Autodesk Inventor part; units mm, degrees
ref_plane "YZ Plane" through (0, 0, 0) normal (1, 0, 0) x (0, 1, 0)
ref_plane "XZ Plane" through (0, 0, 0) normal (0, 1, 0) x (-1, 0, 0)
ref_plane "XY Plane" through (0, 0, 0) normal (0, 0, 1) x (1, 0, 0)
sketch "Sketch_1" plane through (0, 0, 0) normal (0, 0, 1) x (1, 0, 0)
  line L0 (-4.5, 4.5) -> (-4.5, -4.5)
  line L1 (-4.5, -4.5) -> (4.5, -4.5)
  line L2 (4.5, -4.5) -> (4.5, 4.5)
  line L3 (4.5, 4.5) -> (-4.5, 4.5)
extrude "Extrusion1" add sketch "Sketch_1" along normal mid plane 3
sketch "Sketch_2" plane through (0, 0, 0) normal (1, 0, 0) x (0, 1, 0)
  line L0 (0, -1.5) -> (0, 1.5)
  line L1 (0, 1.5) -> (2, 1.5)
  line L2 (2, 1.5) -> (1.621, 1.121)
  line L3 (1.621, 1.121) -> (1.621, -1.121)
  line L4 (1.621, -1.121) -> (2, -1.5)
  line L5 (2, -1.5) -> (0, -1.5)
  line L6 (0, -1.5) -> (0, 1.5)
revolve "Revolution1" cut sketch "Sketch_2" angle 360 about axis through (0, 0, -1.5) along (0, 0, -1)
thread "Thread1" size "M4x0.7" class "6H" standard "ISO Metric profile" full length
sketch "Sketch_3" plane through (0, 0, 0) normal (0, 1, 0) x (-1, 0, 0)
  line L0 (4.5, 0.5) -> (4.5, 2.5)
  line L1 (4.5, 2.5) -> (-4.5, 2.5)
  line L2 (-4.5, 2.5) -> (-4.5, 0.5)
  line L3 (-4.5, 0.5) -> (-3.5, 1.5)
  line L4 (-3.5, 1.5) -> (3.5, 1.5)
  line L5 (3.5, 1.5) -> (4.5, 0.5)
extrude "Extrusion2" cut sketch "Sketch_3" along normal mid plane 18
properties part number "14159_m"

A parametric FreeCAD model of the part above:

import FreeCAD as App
import Part
import Sketcher
from FreeCAD import Vector

doc = App.newDocument("Part")
body = doc.addObject("PartDesign::Body", "Body")

# Sketch on XY plane
sketch1 = body.newObject("Sketcher::SketchObject", "Sketch")
sketch1.AttachmentSupport = (doc.getObject("XY_Plane"), [""])
sketch1.MapMode = "FlatFace"
sketch1.addGeometry(Part.LineSegment(Vector(4, 4, 0), Vector(-4, 4, 0)), False)
sketch1.addGeometry(Part.LineSegment(Vector(-4, 4, 0), Vector(-4, -4, 0)), False)
sketch1.addGeometry(Part.LineSegment(Vector(-4, -4, 0), Vector(4, -4, 0)), False)
sketch1.addGeometry(Part.LineSegment(Vector(4, -4, 0), Vector(4, 4, 0)), False)
sketch1.addConstraint(Sketcher.Constraint("Coincident", 0, 2, 1, 1))
sketch1.addConstraint(Sketcher.Constraint("Coincident", 1, 2, 2, 1))
sketch1.addConstraint(Sketcher.Constraint("Coincident", 2, 2, 3, 1))
sketch1.addConstraint(Sketcher.Constraint("Coincident", 3, 2, 0, 1))
sketch1.addConstraint(Sketcher.Constraint("Horizontal", 0))
sketch1.addConstraint(Sketcher.Constraint("Vertical", 1))
sketch1.addConstraint(Sketcher.Constraint("Horizontal", 2))
sketch1.addConstraint(Sketcher.Constraint("Vertical", 3))
sketch1.addConstraint(Sketcher.Constraint("Symmetric", 0, 2, 2, 2, -1, 1))
sketch1.addConstraint(Sketcher.Constraint("Equal", 2, 1))
sketch1.addConstraint(Sketcher.Constraint("DistanceX", 0, 2, 0, 1, 9.0))
pad1 = body.newObject("PartDesign::Pad", "Pad")
pad1.Profile = sketch1
pad1.Length = 3
pad1.Midplane = True

# Sketch on YZ plane
sketch2 = body.newObject("Sketcher::SketchObject", "Sketch001")
sketch2.AttachmentSupport = (doc.getObject("YZ_Plane"), [""])
sketch2.MapMode = "FlatFace"
sketch2.addGeometry(Part.LineSegment(Vector(0, 1.5, 0), Vector(0, -1.5, 0)), False)
sketch2.addGeometry(Part.LineSegment(Vector(0, -1.5, 0), Vector(2, -1.5, 0)), False)
sketch2.addGeometry(Part.LineSegment(Vector(2, -1.5, 0), Vector(1.6, -1.1, 0)), False)
sketch2.addGeometry(Part.LineSegment(Vector(1.6, -1.1, 0), Vector(1.6, 1.1, 0)), False)
sketch2.addGeometry(Part.LineSegment(Vector(1.6, 1.1, 0), Vector(2, 1.5, 0)), False)
sketch2.addGeometry(Part.LineSegment(Vector(2, 1.5, 0), Vector(0, 1.5, 0)), False)
sketch2.addConstraint(Sketcher.Constraint("Coincident", 0, 2, 1, 1))
sketch2.addConstraint(Sketcher.Constraint("Coincident", 1, 2, 2, 1))
sketch2.addConstraint(Sketcher.Constraint("Coincident", 2, 2, 3, 1))
sketch2.addConstraint(Sketcher.Constraint("Coincident", 3, 2, 4, 1))
sketch2.addConstraint(Sketcher.Constraint("Coincident", 4, 2, 5, 1))
sketch2.addConstraint(Sketcher.Constraint("Coincident", 5, 2, 0, 1))
sketch2.addConstraint(Sketcher.Constraint("Vertical", 0))
sketch2.addConstraint(Sketcher.Constraint("Horizontal", 1))
sketch2.addConstraint(Sketcher.Constraint("Vertical", 3))
sketch2.addConstraint(Sketcher.Constraint("Horizontal", 5))
sketch2.addConstraint(Sketcher.Constraint("Symmetric", 0, 2, 5, 2, -1, 1))
sketch2.addConstraint(Sketcher.Constraint("Perpendicular", 2, 4))
sketch2.addConstraint(Sketcher.Constraint("Vertical", 1, 2, 4, 2))
sketch2.addConstraint(Sketcher.Constraint("Equal", 2, 4))
sketch2.addConstraint(Sketcher.Constraint("DistanceX", 1, 1, 1, 2, 2.0))
sketch2.addConstraint(Sketcher.Constraint("DistanceY", 0, 2, 0, 1, 3.0))
sketch2.addConstraint(Sketcher.Constraint("DistanceY", 3, 1, 3, 2, 2.242))
groove = body.newObject("PartDesign::Groove", "Groove")
groove.Profile = sketch2
groove.ReferenceAxis = (sketch2, ["V_Axis"])
groove.Angle = 360

# Sketch on XZ plane
sketch3 = body.newObject("Sketcher::SketchObject", "Sketch002")
sketch3.AttachmentSupport = (doc.getObject("XZ_Plane"), [""])
sketch3.MapMode = "FlatFace"
sketch3.addGeometry(Part.LineSegment(Vector(-3.5, 1.5, 0), Vector(-4.5, 0.5, 0)), False)
sketch3.addGeometry(Part.LineSegment(Vector(-4.5, 0.5, 0), Vector(-4.5, 2.5, 0)), False)
sketch3.addGeometry(Part.LineSegment(Vector(-4.5, 2.5, 0), Vector(4.5, 2.5, 0)), False)
sketch3.addGeometry(Part.LineSegment(Vector(4.5, 2.5, 0), Vector(4.5, 0.5, 0)), False)
sketch3.addGeometry(Part.LineSegment(Vector(4.5, 0.5, 0), Vector(3.5, 1.5, 0)), False)
sketch3.addGeometry(Part.LineSegment(Vector(3.5, 1.5, 0), Vector(-3.5, 1.5, 0)), False)
sketch3.addConstraint(Sketcher.Constraint("Coincident", 0, 2, 1, 1))
sketch3.addConstraint(Sketcher.Constraint("Coincident", 1, 2, 2, 1))
sketch3.addConstraint(Sketcher.Constraint("Coincident", 2, 2, 3, 1))
sketch3.addConstraint(Sketcher.Constraint("Coincident", 3, 2, 4, 1))
sketch3.addConstraint(Sketcher.Constraint("Coincident", 4, 2, 5, 1))
sketch3.addConstraint(Sketcher.Constraint("Coincident", 5, 2, 0, 1))
sketch3.addConstraint(Sketcher.Constraint("Vertical", 1))
sketch3.addConstraint(Sketcher.Constraint("Horizontal", 2))
sketch3.addConstraint(Sketcher.Constraint("Vertical", 3))
sketch3.addConstraint(Sketcher.Constraint("Horizontal", 5))
sketch3.addConstraint(Sketcher.Constraint("Symmetric", 0, 2, 3, 2, -2))
sketch3.addConstraint(Sketcher.Constraint("Perpendicular", 0, 4))
sketch3.addConstraint(Sketcher.Constraint("Equal", 0, 4))
sketch3.addConstraint(Sketcher.Constraint("DistanceX", 2, 1, 2, 2, 9.0))
sketch3.addConstraint(Sketcher.Constraint("DistanceX", 5, 2, 5, 1, 7.0))
sketch3.addConstraint(Sketcher.Constraint("DistanceY", 1, 1, 1, 2, 2.0))
sketch3.addConstraint(Sketcher.Constraint("DistanceY", -1, 1, 0, 2, 0.5))
pocket1 = body.newObject("PartDesign::Pocket", "Pocket")
pocket1.Profile = sketch3
pocket1.Length = 18
pocket1.Midplane = True

doc.recompute()
